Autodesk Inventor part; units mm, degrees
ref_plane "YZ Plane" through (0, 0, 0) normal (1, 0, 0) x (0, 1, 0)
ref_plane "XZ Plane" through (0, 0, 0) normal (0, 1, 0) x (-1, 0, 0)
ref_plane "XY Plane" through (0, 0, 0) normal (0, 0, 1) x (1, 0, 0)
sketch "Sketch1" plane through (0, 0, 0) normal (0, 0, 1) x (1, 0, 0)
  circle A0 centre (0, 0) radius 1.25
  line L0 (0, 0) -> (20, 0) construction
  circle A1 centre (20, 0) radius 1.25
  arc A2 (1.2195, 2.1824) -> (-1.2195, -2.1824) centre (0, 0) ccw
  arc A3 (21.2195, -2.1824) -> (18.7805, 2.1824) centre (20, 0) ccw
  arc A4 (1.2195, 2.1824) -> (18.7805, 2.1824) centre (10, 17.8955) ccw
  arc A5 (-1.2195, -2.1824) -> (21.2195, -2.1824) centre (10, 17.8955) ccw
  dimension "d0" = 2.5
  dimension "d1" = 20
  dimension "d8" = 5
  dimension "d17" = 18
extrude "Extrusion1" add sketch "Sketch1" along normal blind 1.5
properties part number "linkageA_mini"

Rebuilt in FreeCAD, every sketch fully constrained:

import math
import FreeCAD as App
import Part
import Sketcher
from FreeCAD import Vector
Q = App.Units.Quantity

doc = App.newDocument("Part")
body = doc.addObject("PartDesign::Body", "Body")

# Sketch on XY plane
sketch1 = body.newObject("Sketcher::SketchObject", "Sketch")
sketch1.AttachmentSupport = (doc.getObject("XY_Plane"), [""])
sketch1.MapMode = "FlatFace"
sketch1.addGeometry([
    Part.ArcOfCircle(Part.Circle(Vector(10, 17.9, 0), Vector(0, 0, 1), 18), math.radians(-119), math.radians(-61)),  # 0
    Part.ArcOfCircle(Part.Circle(Vector(0, 0, 0), Vector(0, 0, 1), 2.5), math.radians(61), math.radians(241)),  # 1
    Part.ArcOfCircle(Part.Circle(Vector(10, 17.9, 0), Vector(0, 0, 1), 23), math.radians(-119), math.radians(-61)),  # 2
    Part.ArcOfCircle(Part.Circle(Vector(20, 0, 0), Vector(0, 0, 1), 2.5), math.radians(-61), math.radians(119)),  # 3
    Part.Circle(Vector(0, 0, 0), Vector(0, 0, 1), 1.2),  # 4
    Part.Circle(Vector(20, 0, 0), Vector(0, 0, 1), 1.2),  # 5
], False)
sketch1.addConstraint([
    Sketcher.Constraint("Tangent", 0, 1, 1, 1),
    Sketcher.Constraint("Tangent", 1, 2, 2, 1),
    Sketcher.Constraint("Tangent", 2, 2, 3, 1),
    Sketcher.Constraint("Tangent", 3, 2, 0, 2),
    Sketcher.Constraint("Coincident", 1, 3, -1, 1),
    Sketcher.Constraint("Coincident", 4, 3, -1, 1),
    Sketcher.Constraint("Coincident", 2, 3, 0, 3),
    Sketcher.Constraint("Coincident", 5, 3, 3, 3),
    Sketcher.Constraint("Equal", 4, 5),
    Sketcher.Constraint("PointOnObject", 3, 3, -1),
    Sketcher.Constraint("Radius", 0, Q("18 mm")),
    Sketcher.Constraint("Diameter", 4, Q("2.5 mm")),
    Sketcher.Constraint("Radius", 1, Q("2.5 mm")),
    Sketcher.Constraint("DistanceX", -1, 1, 3, 3, Q("20 mm")),
])
pad1 = body.newObject("PartDesign::Pad", "Pad")
pad1.Profile = sketch1
pad1.Length = 1.5

doc.recompute()
